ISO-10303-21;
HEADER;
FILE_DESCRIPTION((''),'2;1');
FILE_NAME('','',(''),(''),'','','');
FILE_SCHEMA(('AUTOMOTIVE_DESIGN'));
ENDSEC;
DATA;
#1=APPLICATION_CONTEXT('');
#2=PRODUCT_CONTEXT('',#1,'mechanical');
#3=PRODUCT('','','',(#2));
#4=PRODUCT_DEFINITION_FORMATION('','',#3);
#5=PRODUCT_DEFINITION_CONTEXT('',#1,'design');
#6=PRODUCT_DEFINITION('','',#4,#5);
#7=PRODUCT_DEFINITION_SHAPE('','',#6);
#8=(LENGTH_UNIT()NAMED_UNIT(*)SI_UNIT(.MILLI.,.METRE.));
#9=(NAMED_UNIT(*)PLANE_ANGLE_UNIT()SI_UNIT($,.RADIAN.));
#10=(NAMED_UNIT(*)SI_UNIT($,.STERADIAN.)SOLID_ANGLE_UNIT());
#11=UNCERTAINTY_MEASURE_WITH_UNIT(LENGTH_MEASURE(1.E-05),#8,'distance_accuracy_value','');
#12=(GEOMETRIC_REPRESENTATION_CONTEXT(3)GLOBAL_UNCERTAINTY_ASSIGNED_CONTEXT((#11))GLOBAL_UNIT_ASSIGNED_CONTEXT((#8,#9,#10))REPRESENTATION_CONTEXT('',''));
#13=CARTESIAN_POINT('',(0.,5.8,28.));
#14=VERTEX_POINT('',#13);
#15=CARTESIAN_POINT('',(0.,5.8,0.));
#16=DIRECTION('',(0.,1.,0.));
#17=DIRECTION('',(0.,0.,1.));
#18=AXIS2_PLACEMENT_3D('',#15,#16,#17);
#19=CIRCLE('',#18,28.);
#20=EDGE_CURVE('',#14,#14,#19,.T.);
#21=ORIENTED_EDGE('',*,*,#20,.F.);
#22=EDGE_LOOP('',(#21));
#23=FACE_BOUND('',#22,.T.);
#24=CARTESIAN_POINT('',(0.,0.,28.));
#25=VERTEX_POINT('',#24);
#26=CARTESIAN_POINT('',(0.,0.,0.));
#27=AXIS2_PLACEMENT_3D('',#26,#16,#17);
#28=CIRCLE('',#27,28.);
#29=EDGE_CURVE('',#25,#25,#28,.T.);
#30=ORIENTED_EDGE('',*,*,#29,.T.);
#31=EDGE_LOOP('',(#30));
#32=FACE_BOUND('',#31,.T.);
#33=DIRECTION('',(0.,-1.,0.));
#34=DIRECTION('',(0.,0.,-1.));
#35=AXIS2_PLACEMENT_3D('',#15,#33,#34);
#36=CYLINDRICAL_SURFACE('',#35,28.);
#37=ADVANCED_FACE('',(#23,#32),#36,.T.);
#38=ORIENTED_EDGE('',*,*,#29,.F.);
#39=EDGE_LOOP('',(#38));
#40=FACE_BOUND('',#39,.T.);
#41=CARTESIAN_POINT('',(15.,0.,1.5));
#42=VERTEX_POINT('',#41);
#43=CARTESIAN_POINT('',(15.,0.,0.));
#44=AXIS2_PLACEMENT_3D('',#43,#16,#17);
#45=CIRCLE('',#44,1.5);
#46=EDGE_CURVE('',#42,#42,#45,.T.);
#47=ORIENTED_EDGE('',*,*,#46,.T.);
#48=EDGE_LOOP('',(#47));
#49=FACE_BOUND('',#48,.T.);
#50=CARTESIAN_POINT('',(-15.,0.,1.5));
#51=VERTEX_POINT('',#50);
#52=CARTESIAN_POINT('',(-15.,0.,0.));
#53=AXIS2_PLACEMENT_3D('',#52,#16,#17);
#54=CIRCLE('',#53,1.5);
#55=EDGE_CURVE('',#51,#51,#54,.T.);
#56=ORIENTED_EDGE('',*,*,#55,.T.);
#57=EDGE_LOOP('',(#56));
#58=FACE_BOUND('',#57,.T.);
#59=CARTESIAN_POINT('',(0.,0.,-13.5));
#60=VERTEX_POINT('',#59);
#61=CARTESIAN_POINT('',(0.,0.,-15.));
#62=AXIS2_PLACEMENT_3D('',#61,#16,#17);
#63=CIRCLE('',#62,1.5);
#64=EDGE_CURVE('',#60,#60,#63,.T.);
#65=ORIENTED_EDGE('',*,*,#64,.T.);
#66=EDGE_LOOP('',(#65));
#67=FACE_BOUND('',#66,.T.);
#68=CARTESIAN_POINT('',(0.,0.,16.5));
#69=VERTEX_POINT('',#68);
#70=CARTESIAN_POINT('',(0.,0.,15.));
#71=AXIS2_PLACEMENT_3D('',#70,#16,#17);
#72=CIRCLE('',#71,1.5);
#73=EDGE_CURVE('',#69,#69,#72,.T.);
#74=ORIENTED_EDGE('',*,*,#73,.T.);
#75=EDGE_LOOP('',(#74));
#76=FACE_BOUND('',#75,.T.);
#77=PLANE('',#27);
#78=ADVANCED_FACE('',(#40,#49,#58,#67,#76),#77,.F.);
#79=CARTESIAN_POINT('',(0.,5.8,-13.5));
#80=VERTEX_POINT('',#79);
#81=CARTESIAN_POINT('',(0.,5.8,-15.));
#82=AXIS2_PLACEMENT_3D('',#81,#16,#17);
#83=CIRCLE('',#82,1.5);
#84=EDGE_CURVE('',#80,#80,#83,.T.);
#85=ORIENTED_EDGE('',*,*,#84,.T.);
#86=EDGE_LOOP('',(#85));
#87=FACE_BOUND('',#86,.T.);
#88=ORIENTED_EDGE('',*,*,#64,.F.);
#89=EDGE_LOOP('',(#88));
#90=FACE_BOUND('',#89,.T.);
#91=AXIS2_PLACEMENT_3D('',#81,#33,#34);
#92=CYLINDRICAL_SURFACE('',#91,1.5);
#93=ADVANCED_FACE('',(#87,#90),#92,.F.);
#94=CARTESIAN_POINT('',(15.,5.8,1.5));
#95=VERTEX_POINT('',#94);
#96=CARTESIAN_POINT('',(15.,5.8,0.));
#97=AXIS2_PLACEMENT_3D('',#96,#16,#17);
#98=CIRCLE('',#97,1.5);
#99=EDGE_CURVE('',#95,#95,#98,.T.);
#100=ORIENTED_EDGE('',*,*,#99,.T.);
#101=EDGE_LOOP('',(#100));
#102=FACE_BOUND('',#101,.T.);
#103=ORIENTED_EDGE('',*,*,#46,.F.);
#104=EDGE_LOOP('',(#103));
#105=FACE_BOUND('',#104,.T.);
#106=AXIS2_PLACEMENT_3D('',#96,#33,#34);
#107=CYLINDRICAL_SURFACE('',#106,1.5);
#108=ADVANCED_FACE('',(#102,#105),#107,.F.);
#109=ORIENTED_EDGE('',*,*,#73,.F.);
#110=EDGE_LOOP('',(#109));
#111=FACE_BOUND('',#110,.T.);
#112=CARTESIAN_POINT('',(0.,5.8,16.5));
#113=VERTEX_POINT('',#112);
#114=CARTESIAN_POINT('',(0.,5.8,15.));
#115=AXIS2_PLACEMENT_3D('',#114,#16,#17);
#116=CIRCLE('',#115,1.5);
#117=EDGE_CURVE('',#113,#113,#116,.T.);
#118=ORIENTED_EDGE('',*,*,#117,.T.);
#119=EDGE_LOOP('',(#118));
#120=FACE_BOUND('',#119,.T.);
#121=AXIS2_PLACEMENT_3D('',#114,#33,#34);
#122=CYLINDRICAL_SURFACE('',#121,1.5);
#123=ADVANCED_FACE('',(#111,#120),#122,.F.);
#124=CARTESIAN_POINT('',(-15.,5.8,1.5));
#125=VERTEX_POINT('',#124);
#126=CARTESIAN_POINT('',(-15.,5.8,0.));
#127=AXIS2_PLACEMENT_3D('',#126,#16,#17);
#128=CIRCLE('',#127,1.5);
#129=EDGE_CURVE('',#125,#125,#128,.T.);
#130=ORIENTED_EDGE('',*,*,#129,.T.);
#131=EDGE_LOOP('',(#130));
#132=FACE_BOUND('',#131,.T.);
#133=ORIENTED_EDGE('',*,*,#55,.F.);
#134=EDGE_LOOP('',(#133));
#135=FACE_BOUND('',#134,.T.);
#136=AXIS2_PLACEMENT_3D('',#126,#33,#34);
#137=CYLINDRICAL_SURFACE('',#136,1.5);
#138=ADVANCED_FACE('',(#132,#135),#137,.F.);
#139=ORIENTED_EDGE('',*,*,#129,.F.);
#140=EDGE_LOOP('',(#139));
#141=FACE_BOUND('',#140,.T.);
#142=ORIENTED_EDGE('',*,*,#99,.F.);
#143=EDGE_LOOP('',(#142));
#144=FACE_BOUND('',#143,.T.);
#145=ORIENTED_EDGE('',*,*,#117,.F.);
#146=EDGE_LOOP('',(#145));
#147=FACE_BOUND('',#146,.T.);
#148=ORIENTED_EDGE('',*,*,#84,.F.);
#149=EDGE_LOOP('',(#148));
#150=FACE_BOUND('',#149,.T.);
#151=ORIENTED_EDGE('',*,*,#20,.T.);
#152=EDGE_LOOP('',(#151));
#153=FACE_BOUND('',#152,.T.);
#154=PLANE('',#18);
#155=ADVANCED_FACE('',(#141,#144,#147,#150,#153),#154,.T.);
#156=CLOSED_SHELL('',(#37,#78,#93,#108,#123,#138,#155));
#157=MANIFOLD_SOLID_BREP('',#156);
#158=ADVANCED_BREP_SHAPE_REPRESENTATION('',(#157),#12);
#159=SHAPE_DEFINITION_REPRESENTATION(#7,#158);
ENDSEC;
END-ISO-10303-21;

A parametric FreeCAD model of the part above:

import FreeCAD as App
import Part
import Sketcher

V = App.Vector

doc = App.newDocument("Part")
body = doc.addObject("PartDesign::Body", "Body")

# Sketch on XZ plane
sketch1 = doc.addObject("Sketcher::SketchObject", "Sketch")
body.addObject(sketch1)
sketch1.AttachmentSupport = (doc.XZ_Plane, [""])
sketch1.MapMode = "FlatFace"
sketch1.addGeometry([
    Part.Circle(V(0, 0, 0), V(0, 0, 1), 28),  # 0
    Part.Circle(V(-15, 0, 0), V(0, 0, 1), 1.5),  # 1
    Part.Circle(V(0, 15, 0), V(0, 0, 1), 1.5),  # 2
    Part.Circle(V(15, 0, 0), V(0, 0, 1), 1.5),  # 3
    Part.Circle(V(0, -15, 0), V(0, 0, 1), 1.5),  # 4
], False)
sketch1.addConstraint([
    Sketcher.Constraint("Coincident", 0, 3, -1, 1),
    Sketcher.Constraint("Equal", 1, 2),
    Sketcher.Constraint("Equal", 2, 3),
    Sketcher.Constraint("Equal", 3, 4),
    Sketcher.Constraint("Symmetric", 1, 3, 3, 3, -1, 1),
    Sketcher.Constraint("Symmetric", 2, 3, 4, 3, -1, 1),
    Sketcher.Constraint("PointOnObject", 1, 3, -1),
    Sketcher.Constraint("PointOnObject", 2, 3, -2),
    Sketcher.Constraint("Diameter", 0, 56.0),
    Sketcher.Constraint("Diameter", 1, 3.0),
    Sketcher.Constraint("DistanceX", 1, 3, -1, 1, 15.0),
    Sketcher.Constraint("DistanceY", -1, 1, 2, 3, 15.0),
])
pad1 = doc.addObject("PartDesign::Pad", "Pad")
body.addObject(pad1)
pad1.Profile = sketch1
pad1.Length = 5.8
pad1.Reversed = True

doc.recompute()
